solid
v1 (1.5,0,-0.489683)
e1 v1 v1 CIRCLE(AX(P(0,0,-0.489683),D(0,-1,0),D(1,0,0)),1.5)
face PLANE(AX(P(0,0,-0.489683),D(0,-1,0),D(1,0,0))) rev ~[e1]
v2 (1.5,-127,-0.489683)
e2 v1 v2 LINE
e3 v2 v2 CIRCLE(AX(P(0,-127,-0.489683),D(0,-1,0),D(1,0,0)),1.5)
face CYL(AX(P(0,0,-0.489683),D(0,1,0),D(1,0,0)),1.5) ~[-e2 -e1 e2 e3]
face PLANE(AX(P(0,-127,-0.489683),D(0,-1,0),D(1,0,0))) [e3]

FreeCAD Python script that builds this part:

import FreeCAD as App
import Part
import Sketcher

V = App.Vector

doc = App.newDocument("Part")
body = doc.addObject("PartDesign::Body", "Body")

# Sketch on XZ plane
sketch1 = body.newObject("Sketcher::SketchObject", "Sketch")
sketch1.AttachmentSupport = (doc.getObject("XZ_Plane"), [""])
sketch1.MapMode = "FlatFace"
sketch1.addGeometry(Part.Circle(V(0, -0.5, 0), V(0, 0, 1), 1.5), False)
sketch1.addConstraint(Sketcher.Constraint("PointOnObject", 0, 3, -2))
sketch1.addConstraint(Sketcher.Constraint("Diameter", 0, 3.0))
sketch1.addConstraint(Sketcher.Constraint("DistanceY", 0, 3, -1, 1, 0.489683))
pad1 = body.newObject("PartDesign::Pad", "Pad")
pad1.Profile = sketch1
pad1.Length = 127

doc.recompute()
